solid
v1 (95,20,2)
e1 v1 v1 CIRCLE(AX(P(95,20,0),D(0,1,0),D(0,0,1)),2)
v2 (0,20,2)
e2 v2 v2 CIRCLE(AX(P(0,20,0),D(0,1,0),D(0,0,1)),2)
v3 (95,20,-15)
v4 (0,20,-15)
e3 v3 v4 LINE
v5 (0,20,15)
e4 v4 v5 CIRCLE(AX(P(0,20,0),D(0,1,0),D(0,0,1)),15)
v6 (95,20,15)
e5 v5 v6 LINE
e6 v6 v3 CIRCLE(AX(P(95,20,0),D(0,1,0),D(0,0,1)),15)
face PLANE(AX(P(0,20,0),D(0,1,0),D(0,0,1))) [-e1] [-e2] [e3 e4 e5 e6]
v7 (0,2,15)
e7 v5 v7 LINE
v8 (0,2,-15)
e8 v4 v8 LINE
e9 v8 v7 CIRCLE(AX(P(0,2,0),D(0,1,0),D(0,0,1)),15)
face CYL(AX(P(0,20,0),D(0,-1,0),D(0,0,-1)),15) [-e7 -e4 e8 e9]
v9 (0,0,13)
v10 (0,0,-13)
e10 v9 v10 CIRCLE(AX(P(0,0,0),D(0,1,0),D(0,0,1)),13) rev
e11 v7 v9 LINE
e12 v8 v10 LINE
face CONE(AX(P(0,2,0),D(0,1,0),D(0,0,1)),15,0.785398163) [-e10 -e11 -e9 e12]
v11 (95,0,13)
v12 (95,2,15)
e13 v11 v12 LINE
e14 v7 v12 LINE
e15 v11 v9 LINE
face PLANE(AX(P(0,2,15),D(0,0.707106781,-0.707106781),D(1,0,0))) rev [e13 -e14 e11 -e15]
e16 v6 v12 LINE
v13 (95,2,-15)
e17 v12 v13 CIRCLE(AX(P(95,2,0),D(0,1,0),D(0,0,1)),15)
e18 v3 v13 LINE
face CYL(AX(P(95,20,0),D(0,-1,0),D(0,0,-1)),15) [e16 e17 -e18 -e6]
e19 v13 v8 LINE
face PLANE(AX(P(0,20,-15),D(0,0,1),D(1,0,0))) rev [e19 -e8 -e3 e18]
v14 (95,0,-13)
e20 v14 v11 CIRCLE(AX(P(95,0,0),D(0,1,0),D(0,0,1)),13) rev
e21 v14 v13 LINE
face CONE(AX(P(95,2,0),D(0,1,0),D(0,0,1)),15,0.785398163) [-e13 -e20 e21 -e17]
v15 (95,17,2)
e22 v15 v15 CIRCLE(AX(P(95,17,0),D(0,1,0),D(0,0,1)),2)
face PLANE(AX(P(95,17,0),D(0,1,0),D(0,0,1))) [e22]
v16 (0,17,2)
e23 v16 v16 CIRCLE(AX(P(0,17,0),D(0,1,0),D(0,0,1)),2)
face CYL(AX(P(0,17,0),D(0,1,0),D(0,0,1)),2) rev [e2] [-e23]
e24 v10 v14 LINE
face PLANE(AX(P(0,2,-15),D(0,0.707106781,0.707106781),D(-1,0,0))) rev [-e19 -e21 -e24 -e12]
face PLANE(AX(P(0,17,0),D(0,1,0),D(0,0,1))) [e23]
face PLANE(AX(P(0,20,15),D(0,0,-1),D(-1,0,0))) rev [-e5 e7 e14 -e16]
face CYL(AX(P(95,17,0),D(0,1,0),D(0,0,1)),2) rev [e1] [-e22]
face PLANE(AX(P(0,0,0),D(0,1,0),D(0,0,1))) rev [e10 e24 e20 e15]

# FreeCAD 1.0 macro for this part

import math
import FreeCAD as App
import Part
import Sketcher

V = App.Vector
Q = App.Units.Quantity


def edges_at(feature, points):
    """Names of the edges that pass closest to the given points."""
    edges = feature.Shape.Edges
    near = lambda p: min(range(len(edges)), key=lambda i: edges[i].distToShape(Part.Vertex(*p))[0])
    return sorted({f"Edge{near(p) + 1}" for p in points})

doc = App.newDocument("Part")
body = doc.addObject("PartDesign::Body", "Body")

sketch1 = doc.addObject("Sketcher::SketchObject", "Sketch")
body.addObject(sketch1)
sketch1.AttachmentSupport = (doc.XZ_Plane, [""])
sketch1.MapMode = "FlatFace"
sketch1.addGeometry(Part.LineSegment(V(95, -15, 0), V(0, -15, 0)), False)
sketch1.addGeometry(Part.ArcOfCircle(Part.Circle(V(0, 0, 0), V(0, 0, 1), 15), math.radians(90), math.radians(270)), False)
sketch1.addGeometry(Part.LineSegment(V(0, 15, 0), V(95, 15, 0)), False)
sketch1.addGeometry(Part.ArcOfCircle(Part.Circle(V(95, 0, 0), V(0, 0, 1), 15), math.radians(-90), math.radians(90)), False)
sketch1.addConstraint(Sketcher.Constraint("Tangent", 0, 2, 1, 2))
sketch1.addConstraint(Sketcher.Constraint("Tangent", 1, 1, 2, 1))
sketch1.addConstraint(Sketcher.Constraint("Tangent", 2, 2, 3, 2))
sketch1.addConstraint(Sketcher.Constraint("Tangent", 3, 1, 0, 1))
sketch1.addConstraint(Sketcher.Constraint("Horizontal", 0))
sketch1.addConstraint(Sketcher.Constraint("Horizontal", 2))
sketch1.addConstraint(Sketcher.Constraint("Coincident", 1, 3, -1, 1))
sketch1.addConstraint(Sketcher.Constraint("Radius", 1, Q("15 mm")))
sketch1.addConstraint(Sketcher.Constraint("DistanceX", 0, 2, 0, 1, Q("95 mm")))
pad1 = doc.addObject("PartDesign::Pad", "Pad")
body.addObject(pad1)
pad1.Profile = sketch1
pad1.Length = 20
pad1.Reversed = True

sketch2 = doc.addObject("Sketcher::SketchObject", "Sketch001")
body.addObject(sketch2)
sketch2.AttachmentSupport = (doc.XZ_Plane, [""])
sketch2.MapMode = "FlatFace"
sketch2.AttachmentOffset = App.Placement(V(0, 0, -20), App.Rotation())
sketch2.addGeometry(Part.Circle(V(0, 0, 0), V(0, 0, 1), 2), False)
sketch2.addGeometry(Part.Circle(V(95, 0, 0), V(0, 0, 1), 2), False)
sketch2.addConstraint(Sketcher.Constraint("Coincident", 0, 3, -1, 1))
sketch2.addConstraint(Sketcher.Constraint("Equal", 0, 1))
sketch2.addConstraint(Sketcher.Constraint("PointOnObject", 1, 3, -1))
sketch2.addConstraint(Sketcher.Constraint("Diameter", 0, Q("4 mm")))
sketch2.addConstraint(Sketcher.Constraint("DistanceX", -1, 1, 1, 3, Q("95 mm")))
pocket1 = doc.addObject("PartDesign::Pocket", "Pocket")
body.addObject(pocket1)
pocket1.Profile = sketch2
pocket1.Length = 3
pocket1.Reversed = True
doc.recompute()

chamfer = doc.addObject("PartDesign::Chamfer", "Chamfer")
body.addObject(chamfer)
chamfer.Base = (pocket1, edges_at(pocket1, [
    (47.5, 0, -15),
    (110, 0, 0),
    (47.5, 0, 15),
    (-15, 0, 0),
]))
chamfer.Size = 2

doc.recompute()
